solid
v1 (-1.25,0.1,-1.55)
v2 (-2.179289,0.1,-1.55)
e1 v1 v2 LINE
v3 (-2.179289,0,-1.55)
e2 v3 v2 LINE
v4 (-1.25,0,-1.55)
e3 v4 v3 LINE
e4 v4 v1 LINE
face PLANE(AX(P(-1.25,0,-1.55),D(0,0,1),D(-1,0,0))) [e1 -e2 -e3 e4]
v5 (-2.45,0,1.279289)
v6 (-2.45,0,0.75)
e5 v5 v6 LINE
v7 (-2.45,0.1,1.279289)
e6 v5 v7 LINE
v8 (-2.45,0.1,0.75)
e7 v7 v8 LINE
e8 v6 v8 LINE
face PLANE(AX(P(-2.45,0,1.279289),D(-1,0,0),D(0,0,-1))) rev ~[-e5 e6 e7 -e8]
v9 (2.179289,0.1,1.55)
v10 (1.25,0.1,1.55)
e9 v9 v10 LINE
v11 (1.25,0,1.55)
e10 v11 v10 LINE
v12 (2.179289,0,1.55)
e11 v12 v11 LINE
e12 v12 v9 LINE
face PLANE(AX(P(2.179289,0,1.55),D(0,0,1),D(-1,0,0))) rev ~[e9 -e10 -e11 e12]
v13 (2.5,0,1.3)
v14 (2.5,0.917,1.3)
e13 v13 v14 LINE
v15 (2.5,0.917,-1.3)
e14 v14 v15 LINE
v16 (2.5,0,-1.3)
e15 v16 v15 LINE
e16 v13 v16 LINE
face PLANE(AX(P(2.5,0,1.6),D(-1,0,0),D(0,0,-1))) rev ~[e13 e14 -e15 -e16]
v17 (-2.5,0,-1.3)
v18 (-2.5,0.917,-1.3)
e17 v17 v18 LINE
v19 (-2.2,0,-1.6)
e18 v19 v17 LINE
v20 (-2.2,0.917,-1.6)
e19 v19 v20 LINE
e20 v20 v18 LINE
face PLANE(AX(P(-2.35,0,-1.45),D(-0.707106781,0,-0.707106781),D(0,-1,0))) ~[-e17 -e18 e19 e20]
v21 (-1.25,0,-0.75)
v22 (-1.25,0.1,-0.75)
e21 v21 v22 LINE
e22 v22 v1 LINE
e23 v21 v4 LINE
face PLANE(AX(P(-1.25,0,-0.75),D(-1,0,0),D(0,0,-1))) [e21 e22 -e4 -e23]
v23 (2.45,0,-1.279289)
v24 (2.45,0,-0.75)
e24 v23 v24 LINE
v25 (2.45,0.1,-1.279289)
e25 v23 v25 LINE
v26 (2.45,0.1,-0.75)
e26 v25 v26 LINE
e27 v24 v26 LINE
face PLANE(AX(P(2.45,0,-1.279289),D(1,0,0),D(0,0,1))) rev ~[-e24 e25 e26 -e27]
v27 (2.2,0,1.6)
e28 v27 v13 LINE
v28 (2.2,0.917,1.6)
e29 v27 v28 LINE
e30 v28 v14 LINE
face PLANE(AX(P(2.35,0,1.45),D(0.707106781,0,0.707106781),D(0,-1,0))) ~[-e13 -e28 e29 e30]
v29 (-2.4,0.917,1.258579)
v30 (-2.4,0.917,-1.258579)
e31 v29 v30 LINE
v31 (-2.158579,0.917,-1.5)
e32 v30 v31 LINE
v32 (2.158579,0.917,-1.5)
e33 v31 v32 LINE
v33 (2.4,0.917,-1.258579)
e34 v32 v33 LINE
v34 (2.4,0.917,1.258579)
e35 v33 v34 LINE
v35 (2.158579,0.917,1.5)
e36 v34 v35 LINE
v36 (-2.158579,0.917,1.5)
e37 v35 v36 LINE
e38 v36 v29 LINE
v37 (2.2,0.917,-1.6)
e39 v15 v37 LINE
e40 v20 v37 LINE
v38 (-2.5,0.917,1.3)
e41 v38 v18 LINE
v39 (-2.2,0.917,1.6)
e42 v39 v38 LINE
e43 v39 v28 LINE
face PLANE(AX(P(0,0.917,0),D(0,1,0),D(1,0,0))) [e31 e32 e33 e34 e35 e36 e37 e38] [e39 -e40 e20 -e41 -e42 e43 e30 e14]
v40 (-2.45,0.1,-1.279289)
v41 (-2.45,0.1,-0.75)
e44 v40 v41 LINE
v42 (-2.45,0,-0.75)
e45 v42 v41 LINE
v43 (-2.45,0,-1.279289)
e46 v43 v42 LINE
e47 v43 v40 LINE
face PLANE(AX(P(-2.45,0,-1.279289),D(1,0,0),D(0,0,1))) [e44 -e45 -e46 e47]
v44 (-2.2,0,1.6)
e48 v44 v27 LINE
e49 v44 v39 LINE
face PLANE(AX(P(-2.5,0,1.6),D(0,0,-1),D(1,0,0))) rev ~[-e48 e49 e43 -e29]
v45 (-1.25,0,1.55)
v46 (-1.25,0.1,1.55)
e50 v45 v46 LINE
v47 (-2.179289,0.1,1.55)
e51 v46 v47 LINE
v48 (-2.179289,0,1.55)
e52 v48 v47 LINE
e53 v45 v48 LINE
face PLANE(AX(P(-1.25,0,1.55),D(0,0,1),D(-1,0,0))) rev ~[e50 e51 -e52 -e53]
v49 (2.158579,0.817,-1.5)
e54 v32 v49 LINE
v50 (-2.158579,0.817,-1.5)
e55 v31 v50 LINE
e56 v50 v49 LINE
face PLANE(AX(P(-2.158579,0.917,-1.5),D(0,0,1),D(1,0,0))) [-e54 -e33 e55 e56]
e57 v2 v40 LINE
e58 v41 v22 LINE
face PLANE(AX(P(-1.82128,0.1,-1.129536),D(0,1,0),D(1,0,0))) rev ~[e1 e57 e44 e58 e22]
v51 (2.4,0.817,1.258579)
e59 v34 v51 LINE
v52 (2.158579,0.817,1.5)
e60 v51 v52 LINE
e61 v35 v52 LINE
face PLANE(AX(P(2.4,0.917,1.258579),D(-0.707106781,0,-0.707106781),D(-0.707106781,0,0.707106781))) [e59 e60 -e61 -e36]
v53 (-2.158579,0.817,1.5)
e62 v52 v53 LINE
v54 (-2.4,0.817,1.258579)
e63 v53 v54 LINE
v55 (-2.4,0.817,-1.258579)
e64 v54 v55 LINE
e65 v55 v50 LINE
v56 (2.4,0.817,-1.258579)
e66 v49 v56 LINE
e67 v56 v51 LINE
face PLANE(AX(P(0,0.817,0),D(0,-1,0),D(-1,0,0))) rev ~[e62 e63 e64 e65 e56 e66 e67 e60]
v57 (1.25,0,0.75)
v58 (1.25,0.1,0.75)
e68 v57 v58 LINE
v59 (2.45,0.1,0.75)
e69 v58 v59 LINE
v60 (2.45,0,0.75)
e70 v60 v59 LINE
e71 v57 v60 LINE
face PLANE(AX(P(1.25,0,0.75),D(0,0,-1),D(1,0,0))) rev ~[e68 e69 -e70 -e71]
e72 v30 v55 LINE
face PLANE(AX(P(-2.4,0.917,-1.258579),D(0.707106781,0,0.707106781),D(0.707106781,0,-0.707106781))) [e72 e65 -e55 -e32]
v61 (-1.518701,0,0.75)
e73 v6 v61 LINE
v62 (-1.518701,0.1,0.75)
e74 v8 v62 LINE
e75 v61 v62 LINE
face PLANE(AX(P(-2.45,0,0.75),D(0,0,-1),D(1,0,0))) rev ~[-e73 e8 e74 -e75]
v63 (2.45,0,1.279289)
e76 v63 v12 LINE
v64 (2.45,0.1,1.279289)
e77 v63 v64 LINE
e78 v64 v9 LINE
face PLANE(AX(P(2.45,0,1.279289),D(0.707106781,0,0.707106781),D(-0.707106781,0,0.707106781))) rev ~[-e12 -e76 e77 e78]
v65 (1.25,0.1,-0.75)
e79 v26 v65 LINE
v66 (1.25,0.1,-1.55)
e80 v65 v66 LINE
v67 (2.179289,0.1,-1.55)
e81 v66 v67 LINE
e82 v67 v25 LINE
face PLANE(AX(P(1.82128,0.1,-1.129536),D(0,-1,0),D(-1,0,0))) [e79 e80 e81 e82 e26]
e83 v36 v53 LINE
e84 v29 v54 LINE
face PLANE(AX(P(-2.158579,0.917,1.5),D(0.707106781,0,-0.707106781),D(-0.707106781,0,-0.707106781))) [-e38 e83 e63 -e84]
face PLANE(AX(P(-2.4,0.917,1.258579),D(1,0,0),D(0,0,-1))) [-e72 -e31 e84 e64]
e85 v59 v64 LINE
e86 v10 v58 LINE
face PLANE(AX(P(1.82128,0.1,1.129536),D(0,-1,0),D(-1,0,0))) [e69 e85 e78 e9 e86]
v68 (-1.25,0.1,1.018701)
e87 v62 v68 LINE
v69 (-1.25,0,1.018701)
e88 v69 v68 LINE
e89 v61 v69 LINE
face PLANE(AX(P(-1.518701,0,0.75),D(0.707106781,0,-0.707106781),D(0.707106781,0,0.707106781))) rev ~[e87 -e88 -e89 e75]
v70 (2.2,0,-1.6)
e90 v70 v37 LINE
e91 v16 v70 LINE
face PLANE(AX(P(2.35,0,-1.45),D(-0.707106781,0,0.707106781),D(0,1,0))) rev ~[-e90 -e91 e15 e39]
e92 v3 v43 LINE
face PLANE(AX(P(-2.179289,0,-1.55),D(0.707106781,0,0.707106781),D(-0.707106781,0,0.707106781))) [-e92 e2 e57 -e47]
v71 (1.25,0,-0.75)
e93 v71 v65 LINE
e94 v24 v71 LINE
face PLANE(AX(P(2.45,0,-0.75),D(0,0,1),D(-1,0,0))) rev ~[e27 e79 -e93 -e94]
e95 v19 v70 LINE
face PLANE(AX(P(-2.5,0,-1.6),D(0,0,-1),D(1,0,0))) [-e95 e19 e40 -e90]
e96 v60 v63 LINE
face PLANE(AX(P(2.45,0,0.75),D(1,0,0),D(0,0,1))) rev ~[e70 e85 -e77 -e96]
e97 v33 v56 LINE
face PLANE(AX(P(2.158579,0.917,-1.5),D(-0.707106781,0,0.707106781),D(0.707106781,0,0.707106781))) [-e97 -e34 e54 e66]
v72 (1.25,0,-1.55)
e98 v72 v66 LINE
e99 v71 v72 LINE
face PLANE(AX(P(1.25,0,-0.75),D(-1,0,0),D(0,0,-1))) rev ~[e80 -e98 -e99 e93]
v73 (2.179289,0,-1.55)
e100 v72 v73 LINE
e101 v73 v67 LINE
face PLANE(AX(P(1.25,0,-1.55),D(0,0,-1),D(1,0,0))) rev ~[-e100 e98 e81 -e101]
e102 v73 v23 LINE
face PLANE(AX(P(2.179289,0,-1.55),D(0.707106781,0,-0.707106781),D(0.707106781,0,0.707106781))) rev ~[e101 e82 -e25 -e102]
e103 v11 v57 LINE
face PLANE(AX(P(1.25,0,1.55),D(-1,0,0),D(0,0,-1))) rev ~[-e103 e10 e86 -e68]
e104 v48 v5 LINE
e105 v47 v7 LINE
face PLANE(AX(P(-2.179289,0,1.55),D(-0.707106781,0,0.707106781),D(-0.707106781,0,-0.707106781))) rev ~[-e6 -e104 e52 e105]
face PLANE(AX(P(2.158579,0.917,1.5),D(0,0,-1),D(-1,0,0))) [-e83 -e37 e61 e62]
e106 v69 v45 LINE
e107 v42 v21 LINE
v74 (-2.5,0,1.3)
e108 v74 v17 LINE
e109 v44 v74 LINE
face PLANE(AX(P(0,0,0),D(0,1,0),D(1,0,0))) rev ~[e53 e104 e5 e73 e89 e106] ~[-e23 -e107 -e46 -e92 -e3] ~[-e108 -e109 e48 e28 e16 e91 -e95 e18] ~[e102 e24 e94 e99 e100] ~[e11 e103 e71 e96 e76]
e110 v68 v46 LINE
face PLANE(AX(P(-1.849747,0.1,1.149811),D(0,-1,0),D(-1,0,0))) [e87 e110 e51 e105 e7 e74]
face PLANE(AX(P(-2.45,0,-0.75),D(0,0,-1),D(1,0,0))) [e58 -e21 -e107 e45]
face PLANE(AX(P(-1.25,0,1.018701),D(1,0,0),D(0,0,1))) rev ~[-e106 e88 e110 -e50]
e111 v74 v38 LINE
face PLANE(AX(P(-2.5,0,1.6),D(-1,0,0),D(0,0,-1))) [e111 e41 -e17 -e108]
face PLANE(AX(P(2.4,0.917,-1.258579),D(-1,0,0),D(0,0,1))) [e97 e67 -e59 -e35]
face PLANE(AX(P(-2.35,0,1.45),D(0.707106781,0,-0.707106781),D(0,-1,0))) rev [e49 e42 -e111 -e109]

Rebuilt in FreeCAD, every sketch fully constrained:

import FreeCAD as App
import Part
import Sketcher
from FreeCAD import Vector
Q = App.Units.Quantity


def edges_at(feature, points):
    """Names of the edges that pass closest to the given points."""
    edges = feature.Shape.Edges
    near = lambda p: min(range(len(edges)), key=lambda i: edges[i].distToShape(Part.Vertex(*p))[0])
    return sorted({f"Edge{near(p) + 1}" for p in points})


def add_polygon(sketch, points):
    """Adds a closed chain of lines whose ends are joined by coincident constraints."""
    first, n = sketch.GeometryCount, len(points)
    for a, b in zip(points, points[1:] + points[:1]):
        sketch.addGeometry(Part.LineSegment(App.Vector(*a, 0), App.Vector(*b, 0)), False)
    for i in range(n):
        sketch.addConstraint(Sketcher.Constraint("Coincident", first + i, 2, first + (i + 1) % n, 1))

doc = App.newDocument("Part")
body = doc.addObject("PartDesign::Body", "Body")

sketch1 = doc.addObject("Sketcher::SketchObject", "Sketch")
body.addObject(sketch1)
sketch1.AttachmentSupport = (doc.XZ_Plane, [""])
sketch1.MapMode = "FlatFace"
add_polygon(sketch1, [(-2.5, -1.6), (-2.5, 1.6), (2.5, 1.6), (2.5, -1.6)])
sketch1.addConstraint([
    Sketcher.Constraint("Vertical", 0),
    Sketcher.Constraint("Horizontal", 1),
    Sketcher.Constraint("Vertical", 2),
    Sketcher.Constraint("Horizontal", 3),
    Sketcher.Constraint("Symmetric", 0, 2, 2, 2, -1, 1),
    Sketcher.Constraint("DistanceX", 1, 1, 1, 2, 5.0),
    Sketcher.Constraint("DistanceY", 0, 1, 0, 2, 3.2),
])
pad1 = doc.addObject("PartDesign::Pad", "Pad")
body.addObject(pad1)
pad1.Profile = sketch1
pad1.Length = 0.917
pad1.Reversed = True
doc.recompute()

chamfer = doc.addObject("PartDesign::Chamfer", "Chamfer")
body.addObject(chamfer)
chamfer.Base = (pad1, edges_at(pad1, [(2.5, 0.459, 1.6)]))
chamfer.Size = 0.3
doc.recompute()

chamfer2 = doc.addObject("PartDesign::Chamfer", "Chamfer001")
body.addObject(chamfer2)
chamfer2.Base = (chamfer, edges_at(chamfer, [(-2.5, 0.459, 1.6)]))
chamfer2.Size = 0.3
doc.recompute()

chamfer3 = doc.addObject("PartDesign::Chamfer", "Chamfer002")
body.addObject(chamfer3)
chamfer3.Base = (chamfer2, edges_at(chamfer2, [(2.5, 0.459, -1.6)]))
chamfer3.Size = 0.3
doc.recompute()

chamfer4 = doc.addObject("PartDesign::Chamfer", "Chamfer003")
body.addObject(chamfer4)
chamfer4.Base = (chamfer3, edges_at(chamfer3, [(-2.5, 0.459, -1.6)]))
chamfer4.Size = 0.3

sketch2 = doc.addObject("Sketcher::SketchObject", "Sketch001")
body.addObject(sketch2)
sketch2.AttachmentSupport = (doc.XZ_Plane, [""])
sketch2.MapMode = "FlatFace"
add_polygon(sketch2, [(1.25, -1.55), (1.25, -0.75), (2.45, -0.75), (2.45, -1.279289), (2.179289, -1.55)])
sketch2.addConstraint([
    Sketcher.Constraint("Vertical", 0),
    Sketcher.Constraint("Horizontal", 1),
    Sketcher.Constraint("Vertical", 2),
    Sketcher.Constraint("Horizontal", 4),
    Sketcher.Constraint("Angle", 3, Q("-135 deg")),
    Sketcher.Constraint("DistanceX", 1, 1, 1, 2, 1.2),
    Sketcher.Constraint("DistanceY", 0, 1, 0, 2, 0.8),
    Sketcher.Constraint("DistanceX", -1, 1, 0, 2, 1.25),
    Sketcher.Constraint("DistanceY", 0, 2, -1, 1, 0.75),
    Sketcher.Constraint("DistanceX", 4, 2, 4, 1, 0.929289),
])
pocket1 = doc.addObject("PartDesign::Pocket", "Pocket")
body.addObject(pocket1)
pocket1.Profile = sketch2
pocket1.Length = 0.1

sketch3 = doc.addObject("Sketcher::SketchObject", "Sketch002")
body.addObject(sketch3)
sketch3.AttachmentSupport = (doc.XZ_Plane, [""])
sketch3.MapMode = "FlatFace"
add_polygon(sketch3, [(1.25, 0.75), (1.25, 1.55), (2.179289, 1.55), (2.45, 1.279289), (2.45, 0.75)])
sketch3.addConstraint([
    Sketcher.Constraint("Vertical", 0),
    Sketcher.Constraint("Horizontal", 1),
    Sketcher.Constraint("Vertical", 3),
    Sketcher.Constraint("Horizontal", 4),
    Sketcher.Constraint("Angle", 2, Q("-45 deg")),
    Sketcher.Constraint("DistanceX", 4, 2, 4, 1, 1.2),
    Sketcher.Constraint("DistanceY", 0, 1, 0, 2, 0.8),
    Sketcher.Constraint("DistanceX", -1, 1, 0, 2, 1.25),
    Sketcher.Constraint("DistanceY", -1, 1, 0, 2, 1.55),
    Sketcher.Constraint("DistanceX", 1, 1, 1, 2, 0.929289),
])
pocket2 = doc.addObject("PartDesign::Pocket", "Pocket001")
body.addObject(pocket2)
pocket2.Profile = sketch3
pocket2.Length = 0.1

sketch4 = doc.addObject("Sketcher::SketchObject", "Sketch003")
body.addObject(sketch4)
sketch4.AttachmentSupport = (doc.XZ_Plane, [""])
sketch4.MapMode = "FlatFace"
add_polygon(sketch4, [(-1.518701, 0.75), (-2.45, 0.75), (-2.45, 1.279289), (-2.179289, 1.55), (-1.25, 1.55), (-1.25, 1.018701)])
sketch4.addConstraint([
    Sketcher.Constraint("Horizontal", 0),
    Sketcher.Constraint("Vertical", 1),
    Sketcher.Constraint("Horizontal", 3),
    Sketcher.Constraint("Vertical", 4),
    Sketcher.Constraint("Parallel", 2, 5),
    Sketcher.Constraint("Angle", 2, Q("45 deg")),
    Sketcher.Constraint("DistanceY", 0, 2, 2, 2, 0.8),
    Sketcher.Constraint("DistanceX", 1, 2, 3, 2, 1.2),
    Sketcher.Constraint("Distance", 5, 0.38),
    Sketcher.Constraint("DistanceX", 0, 2, -1, 1, 2.45),
    Sketcher.Constraint("DistanceY", -1, 1, 0, 2, 0.75),
    Sketcher.Constraint("DistanceX", 3, 1, 3, 2, 0.929289),
])
pocket3 = doc.addObject("PartDesign::Pocket", "Pocket002")
body.addObject(pocket3)
pocket3.Profile = sketch4
pocket3.Length = 0.1

sketch5 = doc.addObject("Sketcher::SketchObject", "Sketch004")
body.addObject(sketch5)
sketch5.AttachmentSupport = (doc.XZ_Plane, [""])
sketch5.MapMode = "FlatFace"
sketch5.AttachmentOffset = App.Placement(Vector(0, 0, -0.917), App.Rotation())
add_polygon(sketch5, [(-2.158579, -1.5), (-2.4, -1.258579), (-2.4, 1.258579), (-2.158579, 1.5), (2.158579, 1.5), (2.4, 1.258579), (2.4, -1.258579), (2.158579, -1.5)])
sketch5.addConstraint([
    Sketcher.Constraint("Vertical", 1),
    Sketcher.Constraint("Horizontal", 3),
    Sketcher.Constraint("Vertical", 5),
    Sketcher.Constraint("Horizontal", 7),
    Sketcher.Constraint("Symmetric", 0, 2, 4, 2, -1, 1),
    Sketcher.Constraint("Symmetric", 2, 2, 6, 2, -1, 1),
    Sketcher.Constraint("Perpendicular", 0, 2),
    Sketcher.Constraint("Perpendicular", 2, 4),
    Sketcher.Constraint("Perpendicular", 4, 6),
    Sketcher.Constraint("Horizontal", 1, 2, 4, 2),
    Sketcher.Constraint("Vertical", 3, 2, 6, 2),
    Sketcher.Constraint("DistanceY", 6, 2, 3, 2, 3.0),
    Sketcher.Constraint("DistanceX", 0, 2, -1, 1, 2.4),
    Sketcher.Constraint("Distance", 0, 0.341421),
])
pocket4 = doc.addObject("PartDesign::Pocket", "Pocket003")
body.addObject(pocket4)
pocket4.Profile = sketch5
pocket4.Length = 0.1
pocket4.Reversed = True

sketch6 = doc.addObject("Sketcher::SketchObject", "Sketch005")
body.addObject(sketch6)
sketch6.AttachmentSupport = (doc.XZ_Plane, [""])
sketch6.MapMode = "FlatFace"
add_polygon(sketch6, [(-2.45, -1.279289), (-2.45, -0.75), (-1.25, -0.75), (-1.25, -1.55), (-2.179289, -1.55)])
sketch6.addConstraint([
    Sketcher.Constraint("Vertical", 0),
    Sketcher.Constraint("Horizontal", 1),
    Sketcher.Constraint("Vertical", 2),
    Sketcher.Constraint("Horizontal", 3),
    Sketcher.Constraint("Angle", 4, Q("135 deg")),
    Sketcher.Constraint("DistanceX", 1, 1, 1, 2, 1.2),
    Sketcher.Constraint("DistanceY", 2, 2, 2, 1, 0.8),
    Sketcher.Constraint("DistanceX", 0, 2, -1, 1, 2.45),
    Sketcher.Constraint("DistanceY", 0, 2, -1, 1, 0.75),
    Sketcher.Constraint("DistanceX", 3, 2, 3, 1, 0.929289),
])
pocket5 = doc.addObject("PartDesign::Pocket", "Pocket004")
body.addObject(pocket5)
pocket5.Profile = sketch6
pocket5.Length = 0.1

doc.recompute()
